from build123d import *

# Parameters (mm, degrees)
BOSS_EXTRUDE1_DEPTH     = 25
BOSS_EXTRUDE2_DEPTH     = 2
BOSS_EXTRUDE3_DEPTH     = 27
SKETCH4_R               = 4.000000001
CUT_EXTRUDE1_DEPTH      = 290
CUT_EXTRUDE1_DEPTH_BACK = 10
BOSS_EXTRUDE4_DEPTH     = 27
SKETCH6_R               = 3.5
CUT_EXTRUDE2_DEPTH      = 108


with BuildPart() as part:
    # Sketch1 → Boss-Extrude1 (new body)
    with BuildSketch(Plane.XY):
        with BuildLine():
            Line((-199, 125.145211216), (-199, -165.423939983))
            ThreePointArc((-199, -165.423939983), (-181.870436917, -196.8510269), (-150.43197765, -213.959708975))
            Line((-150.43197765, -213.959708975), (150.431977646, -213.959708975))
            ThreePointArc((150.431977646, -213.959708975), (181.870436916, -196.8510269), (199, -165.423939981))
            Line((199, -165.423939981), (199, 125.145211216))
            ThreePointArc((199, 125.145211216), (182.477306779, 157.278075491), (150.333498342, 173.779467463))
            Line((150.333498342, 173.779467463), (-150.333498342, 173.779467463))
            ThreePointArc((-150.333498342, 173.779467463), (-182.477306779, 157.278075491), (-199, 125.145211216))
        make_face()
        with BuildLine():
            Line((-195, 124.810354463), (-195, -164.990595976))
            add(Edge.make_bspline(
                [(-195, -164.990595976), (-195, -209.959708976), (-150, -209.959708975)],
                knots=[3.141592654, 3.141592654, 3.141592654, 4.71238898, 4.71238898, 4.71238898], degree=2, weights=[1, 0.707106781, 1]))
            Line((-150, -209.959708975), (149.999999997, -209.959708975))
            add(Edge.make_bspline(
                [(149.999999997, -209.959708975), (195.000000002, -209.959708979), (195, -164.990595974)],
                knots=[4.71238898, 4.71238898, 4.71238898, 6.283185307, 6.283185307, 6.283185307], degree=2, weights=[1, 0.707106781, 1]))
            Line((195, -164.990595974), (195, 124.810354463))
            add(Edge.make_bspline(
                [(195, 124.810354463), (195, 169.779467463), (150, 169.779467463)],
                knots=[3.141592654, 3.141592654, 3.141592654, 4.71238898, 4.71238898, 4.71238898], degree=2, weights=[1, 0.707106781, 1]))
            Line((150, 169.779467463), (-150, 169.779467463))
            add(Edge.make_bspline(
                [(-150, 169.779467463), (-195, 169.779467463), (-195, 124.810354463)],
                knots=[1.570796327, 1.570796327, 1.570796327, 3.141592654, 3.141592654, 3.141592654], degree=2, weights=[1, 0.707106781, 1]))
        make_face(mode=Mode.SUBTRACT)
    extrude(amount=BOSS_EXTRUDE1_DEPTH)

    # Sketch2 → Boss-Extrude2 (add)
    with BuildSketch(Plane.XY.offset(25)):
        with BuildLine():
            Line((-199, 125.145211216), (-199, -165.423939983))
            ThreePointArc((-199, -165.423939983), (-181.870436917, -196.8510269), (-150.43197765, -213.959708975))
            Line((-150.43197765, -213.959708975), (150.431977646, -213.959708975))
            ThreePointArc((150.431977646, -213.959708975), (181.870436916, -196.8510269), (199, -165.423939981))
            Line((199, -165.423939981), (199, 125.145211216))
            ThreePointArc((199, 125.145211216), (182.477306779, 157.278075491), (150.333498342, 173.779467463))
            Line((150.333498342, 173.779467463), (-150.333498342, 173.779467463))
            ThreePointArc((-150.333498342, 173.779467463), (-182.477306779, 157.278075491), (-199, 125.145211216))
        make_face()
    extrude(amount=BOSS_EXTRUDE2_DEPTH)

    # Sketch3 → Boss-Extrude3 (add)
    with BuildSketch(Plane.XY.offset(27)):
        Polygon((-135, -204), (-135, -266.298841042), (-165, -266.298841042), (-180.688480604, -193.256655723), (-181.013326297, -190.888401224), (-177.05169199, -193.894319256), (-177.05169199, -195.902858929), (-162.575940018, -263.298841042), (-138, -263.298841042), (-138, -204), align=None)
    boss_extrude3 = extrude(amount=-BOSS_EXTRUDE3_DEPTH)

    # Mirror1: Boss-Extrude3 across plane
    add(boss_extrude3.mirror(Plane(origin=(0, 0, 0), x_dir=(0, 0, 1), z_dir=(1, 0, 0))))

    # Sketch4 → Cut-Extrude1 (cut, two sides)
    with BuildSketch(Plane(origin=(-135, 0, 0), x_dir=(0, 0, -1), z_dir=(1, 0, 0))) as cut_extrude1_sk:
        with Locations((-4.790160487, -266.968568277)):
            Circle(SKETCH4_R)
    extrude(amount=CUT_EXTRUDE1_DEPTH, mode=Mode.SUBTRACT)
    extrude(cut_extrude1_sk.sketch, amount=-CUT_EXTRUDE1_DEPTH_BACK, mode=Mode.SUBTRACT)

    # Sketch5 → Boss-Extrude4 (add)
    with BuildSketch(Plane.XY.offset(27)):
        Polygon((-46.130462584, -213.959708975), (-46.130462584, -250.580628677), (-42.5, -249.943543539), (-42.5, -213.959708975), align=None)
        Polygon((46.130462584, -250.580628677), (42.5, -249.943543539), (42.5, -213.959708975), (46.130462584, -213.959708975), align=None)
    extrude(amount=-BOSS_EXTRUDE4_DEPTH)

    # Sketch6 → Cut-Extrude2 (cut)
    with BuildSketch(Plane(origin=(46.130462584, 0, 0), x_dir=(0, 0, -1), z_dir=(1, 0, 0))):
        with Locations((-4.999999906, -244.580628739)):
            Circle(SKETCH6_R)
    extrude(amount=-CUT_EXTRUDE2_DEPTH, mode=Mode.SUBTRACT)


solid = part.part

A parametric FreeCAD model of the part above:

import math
import FreeCAD as App
import Part
import Sketcher
Q = App.Units.Quantity

doc = App.newDocument("Part")
body = doc.addObject("PartDesign::Body", "Body")

sketch1 = body.newObject("Sketcher::SketchObject", "Sketch")
sketch1.AttachmentSupport = (doc.getObject("XY_Plane"), [""])
sketch1.MapMode = "FlatFace"
sketch1.addGeometry([
    Part.LineSegment(App.Vector(-199, 125.145211, 0), App.Vector(-199, -165.42394, 0)),
    Part.ArcOfCircle(Part.Circle(App.Vector(-137.134887, -152.085749, 0), App.Vector(0, 0, 1), 63.286646), math.radians(-167.833201), math.radians(-102.128737)),
    Part.LineSegment(App.Vector(-150.431978, -213.959709, 0), App.Vector(150.431978, -213.959709, 0)),
    Part.ArcOfCircle(Part.Circle(App.Vector(137.134887, -152.085749, 0), App.Vector(0, 0, 1), 63.286646), math.radians(-77.871263), math.radians(-12.166799)),
    Part.LineSegment(App.Vector(199, -165.42394, 0), App.Vector(199, 125.145211, 0)),
    Part.ArcOfCircle(Part.Circle(App.Vector(140.717962, 115.491044, 0), App.Vector(0, 0, 1), 59.076212), math.radians(9.405395), math.radians(80.63258)),
    Part.LineSegment(App.Vector(150.333498, 173.779467, 0), App.Vector(-150.333498, 173.779467, 0)),
    Part.ArcOfCircle(Part.Circle(App.Vector(-140.717962, 115.491044, 0), App.Vector(0, 0, 1), 59.076212), math.radians(99.36742), math.radians(170.594605)),
    Part.LineSegment(App.Vector(-195, -164.990596, 0), App.Vector(-195, 124.810354, 0)),
    Part.BSplineCurve([App.Vector(-150, 169.779467, 0), App.Vector(-195, 169.779467, 0), App.Vector(-195, 124.810354, 0)], [3, 3], [1.570796327, 3.141592654], False, 2, [1, 0.707106781, 1], False),
    Part.LineSegment(App.Vector(-150, 169.779467, 0), App.Vector(150, 169.779467, 0)),
    Part.BSplineCurve([App.Vector(195, 124.810354, 0), App.Vector(195, 169.779467, 0), App.Vector(150, 169.779467, 0)], [3, 3], [3.141592654, 4.71238898], False, 2, [1, 0.707106781, 1], False),
    Part.LineSegment(App.Vector(195, 124.810354, 0), App.Vector(195, -164.990596, 0)),
    Part.BSplineCurve([App.Vector(150, -209.959709, 0), App.Vector(195, -209.959709, 0), App.Vector(195, -164.990596, 0)], [3, 3], [4.71238898, 6.283185307], False, 2, [1, 0.707106781, 1], False),
    Part.LineSegment(App.Vector(150, -209.959709, 0), App.Vector(-150, -209.959709, 0)),
    Part.BSplineCurve([App.Vector(-195, -164.990596, 0), App.Vector(-195, -209.959709, 0), App.Vector(-150, -209.959709, 0)], [3, 3], [3.141592654, 4.71238898], False, 2, [1, 0.707106781, 1], False),
], False)
sketch1.addConstraint([
    Sketcher.Constraint("Block", 9),
    Sketcher.Constraint("Block", 11),
    Sketcher.Constraint("Block", 13),
    Sketcher.Constraint("Block", 15),
    Sketcher.Constraint("Coincident", 0, 2, 1, 1),
    Sketcher.Constraint("Coincident", 1, 2, 2, 1),
    Sketcher.Constraint("Coincident", 2, 2, 3, 1),
    Sketcher.Constraint("Coincident", 3, 2, 4, 1),
    Sketcher.Constraint("Coincident", 4, 2, 5, 1),
    Sketcher.Constraint("Coincident", 5, 2, 6, 1),
    Sketcher.Constraint("Coincident", 6, 2, 7, 1),
    Sketcher.Constraint("Coincident", 7, 2, 0, 1),
    Sketcher.Constraint("Coincident", 8, 2, 9, 2),
    Sketcher.Constraint("Coincident", 9, 1, 10, 1),
    Sketcher.Constraint("Coincident", 10, 2, 11, 2),
    Sketcher.Constraint("Coincident", 11, 1, 12, 1),
    Sketcher.Constraint("Coincident", 12, 2, 13, 2),
    Sketcher.Constraint("Coincident", 13, 1, 14, 1),
    Sketcher.Constraint("Coincident", 14, 2, 15, 2),
    Sketcher.Constraint("Coincident", 15, 1, 8, 1),
    Sketcher.Constraint("Vertical", 0),
    Sketcher.Constraint("Horizontal", 2),
    Sketcher.Constraint("Vertical", 4),
    Sketcher.Constraint("Horizontal", 6),
    Sketcher.Constraint("Equal", 1, 3),
    Sketcher.Constraint("Equal", 5, 7),
    Sketcher.Constraint("Symmetric", 1, 3, 3, 3, -2),
    Sketcher.Constraint("Symmetric", 5, 3, 7, 3, -2),
    Sketcher.Constraint("Horizontal", 0, 2, 3, 2),
    Sketcher.Constraint("DistanceX", 0, 2, -1, 1, Q("199 mm")),
    Sketcher.Constraint("DistanceY", 10, 2, 5, 2, Q("4 mm")),
    Sketcher.Constraint("DistanceY", 1, 2, 14, 2, Q("4 mm")),
    Sketcher.Constraint("Radius", 1, Q("63.286646 mm")),
    Sketcher.Constraint("Radius", 5, Q("59.076212 mm")),
    Sketcher.Constraint("DistanceY", 0, 2, 0, 1, Q("290.569151 mm")),
    Sketcher.Constraint("DistanceX", -1, 1, 5, 2, Q("150.333498 mm")),
    Sketcher.Constraint("DistanceX", 2, 1, 2, 2, Q("300.863955 mm")),
    Sketcher.Constraint("DistanceY", 1, 3, -1, 1, Q("152.085749 mm")),
])
pad1 = body.newObject("PartDesign::Pad", "Pad")
pad1.Profile = sketch1
pad1.Length = 25

sketch2 = body.newObject("Sketcher::SketchObject", "Sketch001")
sketch2.AttachmentSupport = (doc.getObject("XY_Plane"), [""])
sketch2.MapMode = "FlatFace"
sketch2.AttachmentOffset = App.Placement(App.Vector(0, 0, 25), App.Rotation())
sketch2.addGeometry([
    Part.LineSegment(App.Vector(-199, 125, 0), App.Vector(-199, -165, 0)),
    Part.ArcOfCircle(Part.Circle(App.Vector(-137, -152, 0), App.Vector(0, 0, 1), 63), math.radians(-168), math.radians(-102)),
    Part.LineSegment(App.Vector(-150, -214, 0), App.Vector(150, -214, 0)),
    Part.ArcOfCircle(Part.Circle(App.Vector(137, -152, 0), App.Vector(0, 0, 1), 63), math.radians(-78), math.radians(-12)),
    Part.LineSegment(App.Vector(199, -165, 0), App.Vector(199, 125, 0)),
    Part.ArcOfCircle(Part.Circle(App.Vector(141, 115, 0), App.Vector(0, 0, 1), 59), math.radians(9), math.radians(81)),
    Part.LineSegment(App.Vector(150, 174, 0), App.Vector(-150, 174, 0)),
    Part.ArcOfCircle(Part.Circle(App.Vector(-141, 115, 0), App.Vector(0, 0, 1), 59), math.radians(99), math.radians(171)),
], False)
sketch2.addConstraint([
    Sketcher.Constraint("Coincident", 0, 2, 1, 1),
    Sketcher.Constraint("Coincident", 1, 2, 2, 1),
    Sketcher.Constraint("Coincident", 2, 2, 3, 1),
    Sketcher.Constraint("Coincident", 3, 2, 4, 1),
    Sketcher.Constraint("Coincident", 4, 2, 5, 1),
    Sketcher.Constraint("Coincident", 5, 2, 6, 1),
    Sketcher.Constraint("Coincident", 6, 2, 7, 1),
    Sketcher.Constraint("Coincident", 7, 2, 0, 1),
    Sketcher.Constraint("Vertical", 0),
    Sketcher.Constraint("Horizontal", 2),
    Sketcher.Constraint("Vertical", 4),
    Sketcher.Constraint("Horizontal", 6),
    Sketcher.Constraint("Equal", 1, 3),
    Sketcher.Constraint("Equal", 5, 7),
    Sketcher.Constraint("Symmetric", 1, 3, 3, 3, -2),
    Sketcher.Constraint("Symmetric", 5, 3, 7, 3, -2),
    Sketcher.Constraint("Horizontal", 0, 2, 3, 2),
    Sketcher.Constraint("DistanceX", 0, 2, -1, 1, Q("199 mm")),
    Sketcher.Constraint("Radius", 1, Q("63.286646 mm")),
    Sketcher.Constraint("Radius", 5, Q("59.076212 mm")),
    Sketcher.Constraint("DistanceY", 0, 2, 0, 1, Q("290.569151 mm")),
    Sketcher.Constraint("DistanceX", -1, 1, 5, 2, Q("150.333498 mm")),
    Sketcher.Constraint("DistanceX", 2, 1, 2, 2, Q("300.863955 mm")),
    Sketcher.Constraint("DistanceY", 1, 3, -1, 1, Q("152.085749 mm")),
    Sketcher.Constraint("DistanceY", 0, 2, -1, 1, Q("165.42394 mm")),
    Sketcher.Constraint("DistanceX", 1, 3, 5, 3, Q("277.852849 mm")),
])
pad2 = body.newObject("PartDesign::Pad", "Pad001")
pad2.Profile = sketch2
pad2.Length = 2

sketch3 = body.newObject("Sketcher::SketchObject", "Sketch002")
sketch3.AttachmentSupport = (doc.getObject("XY_Plane"), [""])
sketch3.MapMode = "FlatFace"
sketch3.AttachmentOffset = App.Placement(App.Vector(0, 0, 27), App.Rotation())
sketch3.addGeometry([
    Part.LineSegment(App.Vector(-135, -266.3, 0), App.Vector(-135, -204, 0)),
    Part.LineSegment(App.Vector(-135, -204, 0), App.Vector(-138, -204, 0)),
    Part.LineSegment(App.Vector(-138, -204, 0), App.Vector(-138, -263.3, 0)),
    Part.LineSegment(App.Vector(-138, -263.3, 0), App.Vector(-162.6, -263.3, 0)),
    Part.LineSegment(App.Vector(-162.6, -263.3, 0), App.Vector(-177.1, -195.9, 0)),
    Part.LineSegment(App.Vector(-177.1, -195.9, 0), App.Vector(-177.1, -193.9, 0)),
    Part.LineSegment(App.Vector(-177.1, -193.9, 0), App.Vector(-181, -190.9, 0)),
    Part.LineSegment(App.Vector(-181, -190.9, 0), App.Vector(-180.7, -193.3, 0)),
    Part.LineSegment(App.Vector(-180.7, -193.3, 0), App.Vector(-165, -266.3, 0)),
    Part.LineSegment(App.Vector(-165, -266.3, 0), App.Vector(-135, -266.3, 0)),
], False)
sketch3.addConstraint([
    Sketcher.Constraint("Coincident", 0, 2, 1, 1),
    Sketcher.Constraint("Coincident", 1, 2, 2, 1),
    Sketcher.Constraint("Coincident", 2, 2, 3, 1),
    Sketcher.Constraint("Coincident", 3, 2, 4, 1),
    Sketcher.Constraint("Coincident", 4, 2, 5, 1),
    Sketcher.Constraint("Coincident", 5, 2, 6, 1),
    Sketcher.Constraint("Coincident", 6, 2, 7, 1),
    Sketcher.Constraint("Coincident", 7, 2, 8, 1),
    Sketcher.Constraint("Coincident", 8, 2, 9, 1),
    Sketcher.Constraint("Coincident", 9, 2, 0, 1),
    Sketcher.Constraint("Vertical", 0),
    Sketcher.Constraint("Horizontal", 1),
    Sketcher.Constraint("Vertical", 2),
    Sketcher.Constraint("Horizontal", 3),
    Sketcher.Constraint("Vertical", 5),
    Sketcher.Constraint("Horizontal", 9),
    Sketcher.Constraint("Parallel", 4, 8),
    Sketcher.Constraint("DistanceX", 1, 2, 1, 1, Q("3 mm")),
    Sketcher.Constraint("DistanceX", 9, 1, 9, 2, Q("30 mm")),
    Sketcher.Constraint("DistanceX", 0, 2, -1, 1, Q("135 mm")),
    Sketcher.Constraint("DistanceY", 0, 2, -1, 1, Q("204 mm")),
    Sketcher.Constraint("DistanceY", 8, 2, 3, 2, Q("3 mm")),
    Sketcher.Constraint("DistanceX", 3, 2, 3, 1, Q("24.57594 mm")),
    Sketcher.Constraint("DistanceY", 0, 1, 0, 2, Q("62.298841 mm")),
    Sketcher.Constraint("DistanceY", 5, 1, 5, 2, Q("2.00854 mm")),
    Sketcher.Constraint("DistanceY", 6, 2, -1, 1, Q("190.888401 mm")),
    Sketcher.Constraint("Distance", 7, Q("2.39043 mm")),
    Sketcher.Constraint("DistanceX", 4, 2, -1, 1, Q("177.051692 mm")),
    Sketcher.Constraint("DistanceY", 4, 2, -1, 1, Q("195.902859 mm")),
    Sketcher.Constraint("DistanceX", 7, 2, -1, 1, Q("180.688481 mm")),
])
pad3 = body.newObject("PartDesign::Pad", "Pad002")
pad3.Profile = sketch3
pad3.Length = 27
pad3.Reversed = True
doc.recompute()

mirrored = body.newObject("PartDesign::Mirrored", "Mirrored")
mirrored.Originals = [pad3]
mirrored.MirrorPlane = (doc.getObject("YZ_Plane"), [""])
body.Tip = mirrored

sketch4 = body.newObject("Sketcher::SketchObject", "Sketch003")
sketch4.AttachmentSupport = (doc.getObject("YZ_Plane"), [""])
sketch4.MapMode = "FlatFace"
sketch4.AttachmentOffset = App.Placement(App.Vector(0, 0, -135), App.Rotation())
sketch4.addGeometry(Part.Circle(App.Vector(-267, 4.8, 0), App.Vector(0, 0, 1), 4), False)
sketch4.addConstraint([
    Sketcher.Constraint("Diameter", 0, Q("8 mm")),
    Sketcher.Constraint("DistanceX", 0, 3, -1, 1, Q("266.968568 mm")),
    Sketcher.Constraint("DistanceY", -1, 1, 0, 3, Q("4.79016 mm")),
])
pocket1 = body.newObject("PartDesign::Pocket", "Pocket")
pocket1.Profile = sketch4
pocket1.Type = "TwoLengths"
pocket1.Length = 290
pocket1.Length2 = 10
pocket1.Reversed = True

sketch5 = body.newObject("Sketcher::SketchObject", "Sketch004")
sketch5.AttachmentSupport = (doc.getObject("XY_Plane"), [""])
sketch5.MapMode = "FlatFace"
sketch5.AttachmentOffset = App.Placement(App.Vector(0, 0, 27), App.Rotation())
sketch5.addGeometry([
    Part.LineSegment(App.Vector(-46.1, -214, 0), App.Vector(-46.1, -250.6, 0)),
    Part.LineSegment(App.Vector(-46.1, -250.6, 0), App.Vector(-42.5, -249.9, 0)),
    Part.LineSegment(App.Vector(-42.5, -249.9, 0), App.Vector(-42.5, -214, 0)),
    Part.LineSegment(App.Vector(-42.5, -214, 0), App.Vector(-46.1, -214, 0)),
    Part.LineSegment(App.Vector(42.5, -249.9, 0), App.Vector(46.1, -250.6, 0)),
    Part.LineSegment(App.Vector(46.1, -250.6, 0), App.Vector(46.1, -214, 0)),
    Part.LineSegment(App.Vector(46.1, -214, 0), App.Vector(42.5, -214, 0)),
    Part.LineSegment(App.Vector(42.5, -214, 0), App.Vector(42.5, -249.9, 0)),
], False)
sketch5.addConstraint([
    Sketcher.Constraint("Coincident", 0, 2, 1, 1),
    Sketcher.Constraint("Coincident", 1, 2, 2, 1),
    Sketcher.Constraint("Coincident", 2, 2, 3, 1),
    Sketcher.Constraint("Coincident", 3, 2, 0, 1),
    Sketcher.Constraint("Coincident", 4, 2, 5, 1),
    Sketcher.Constraint("Coincident", 5, 2, 6, 1),
    Sketcher.Constraint("Coincident", 6, 2, 7, 1),
    Sketcher.Constraint("Coincident", 7, 2, 4, 1),
    Sketcher.Constraint("Vertical", 0),
    Sketcher.Constraint("Vertical", 2),
    Sketcher.Constraint("Horizontal", 3),
    Sketcher.Constraint("Vertical", 5),
    Sketcher.Constraint("Horizontal", 6),
    Sketcher.Constraint("Vertical", 7),
    Sketcher.Constraint("Symmetric", 0, 2, 4, 2, -2),
    Sketcher.Constraint("Symmetric", 2, 2, 6, 2, -2),
    Sketcher.Constraint("Horizontal", 1, 2, 7, 2),
    Sketcher.Constraint("DistanceX", 2, 2, 6, 2, Q("85 mm")),
    Sketcher.Constraint("DistanceY", 0, 2, 0, 1, Q("36.62092 mm")),
    Sketcher.Constraint("DistanceX", 3, 2, 3, 1, Q("3.630463 mm")),
    Sketcher.Constraint("DistanceY", 2, 1, 2, 2, Q("35.983835 mm")),
    Sketcher.Constraint("DistanceY", 0, 2, -1, 1, Q("250.580629 mm")),
])
pad4 = body.newObject("PartDesign::Pad", "Pad003")
pad4.Profile = sketch5
pad4.Length = 27
pad4.Reversed = True

sketch6 = body.newObject("Sketcher::SketchObject", "Sketch005")
sketch6.AttachmentSupport = (doc.getObject("YZ_Plane"), [""])
sketch6.MapMode = "FlatFace"
sketch6.AttachmentOffset = App.Placement(App.Vector(0, 0, 46.130463), App.Rotation())
sketch6.addGeometry(Part.Circle(App.Vector(-244.6, 5, 0), App.Vector(0, 0, 1), 3.5), False)
sketch6.addConstraint([
    Sketcher.Constraint("Diameter", 0, Q("7 mm")),
    Sketcher.Constraint("DistanceY", -1, 1, 0, 3, Q("5 mm")),
    Sketcher.Constraint("DistanceX", 0, 3, -1, 1, Q("244.580629 mm")),
])
pocket2 = body.newObject("PartDesign::Pocket", "Pocket001")
pocket2.Profile = sketch6
pocket2.Length = 108

doc.recompute()
